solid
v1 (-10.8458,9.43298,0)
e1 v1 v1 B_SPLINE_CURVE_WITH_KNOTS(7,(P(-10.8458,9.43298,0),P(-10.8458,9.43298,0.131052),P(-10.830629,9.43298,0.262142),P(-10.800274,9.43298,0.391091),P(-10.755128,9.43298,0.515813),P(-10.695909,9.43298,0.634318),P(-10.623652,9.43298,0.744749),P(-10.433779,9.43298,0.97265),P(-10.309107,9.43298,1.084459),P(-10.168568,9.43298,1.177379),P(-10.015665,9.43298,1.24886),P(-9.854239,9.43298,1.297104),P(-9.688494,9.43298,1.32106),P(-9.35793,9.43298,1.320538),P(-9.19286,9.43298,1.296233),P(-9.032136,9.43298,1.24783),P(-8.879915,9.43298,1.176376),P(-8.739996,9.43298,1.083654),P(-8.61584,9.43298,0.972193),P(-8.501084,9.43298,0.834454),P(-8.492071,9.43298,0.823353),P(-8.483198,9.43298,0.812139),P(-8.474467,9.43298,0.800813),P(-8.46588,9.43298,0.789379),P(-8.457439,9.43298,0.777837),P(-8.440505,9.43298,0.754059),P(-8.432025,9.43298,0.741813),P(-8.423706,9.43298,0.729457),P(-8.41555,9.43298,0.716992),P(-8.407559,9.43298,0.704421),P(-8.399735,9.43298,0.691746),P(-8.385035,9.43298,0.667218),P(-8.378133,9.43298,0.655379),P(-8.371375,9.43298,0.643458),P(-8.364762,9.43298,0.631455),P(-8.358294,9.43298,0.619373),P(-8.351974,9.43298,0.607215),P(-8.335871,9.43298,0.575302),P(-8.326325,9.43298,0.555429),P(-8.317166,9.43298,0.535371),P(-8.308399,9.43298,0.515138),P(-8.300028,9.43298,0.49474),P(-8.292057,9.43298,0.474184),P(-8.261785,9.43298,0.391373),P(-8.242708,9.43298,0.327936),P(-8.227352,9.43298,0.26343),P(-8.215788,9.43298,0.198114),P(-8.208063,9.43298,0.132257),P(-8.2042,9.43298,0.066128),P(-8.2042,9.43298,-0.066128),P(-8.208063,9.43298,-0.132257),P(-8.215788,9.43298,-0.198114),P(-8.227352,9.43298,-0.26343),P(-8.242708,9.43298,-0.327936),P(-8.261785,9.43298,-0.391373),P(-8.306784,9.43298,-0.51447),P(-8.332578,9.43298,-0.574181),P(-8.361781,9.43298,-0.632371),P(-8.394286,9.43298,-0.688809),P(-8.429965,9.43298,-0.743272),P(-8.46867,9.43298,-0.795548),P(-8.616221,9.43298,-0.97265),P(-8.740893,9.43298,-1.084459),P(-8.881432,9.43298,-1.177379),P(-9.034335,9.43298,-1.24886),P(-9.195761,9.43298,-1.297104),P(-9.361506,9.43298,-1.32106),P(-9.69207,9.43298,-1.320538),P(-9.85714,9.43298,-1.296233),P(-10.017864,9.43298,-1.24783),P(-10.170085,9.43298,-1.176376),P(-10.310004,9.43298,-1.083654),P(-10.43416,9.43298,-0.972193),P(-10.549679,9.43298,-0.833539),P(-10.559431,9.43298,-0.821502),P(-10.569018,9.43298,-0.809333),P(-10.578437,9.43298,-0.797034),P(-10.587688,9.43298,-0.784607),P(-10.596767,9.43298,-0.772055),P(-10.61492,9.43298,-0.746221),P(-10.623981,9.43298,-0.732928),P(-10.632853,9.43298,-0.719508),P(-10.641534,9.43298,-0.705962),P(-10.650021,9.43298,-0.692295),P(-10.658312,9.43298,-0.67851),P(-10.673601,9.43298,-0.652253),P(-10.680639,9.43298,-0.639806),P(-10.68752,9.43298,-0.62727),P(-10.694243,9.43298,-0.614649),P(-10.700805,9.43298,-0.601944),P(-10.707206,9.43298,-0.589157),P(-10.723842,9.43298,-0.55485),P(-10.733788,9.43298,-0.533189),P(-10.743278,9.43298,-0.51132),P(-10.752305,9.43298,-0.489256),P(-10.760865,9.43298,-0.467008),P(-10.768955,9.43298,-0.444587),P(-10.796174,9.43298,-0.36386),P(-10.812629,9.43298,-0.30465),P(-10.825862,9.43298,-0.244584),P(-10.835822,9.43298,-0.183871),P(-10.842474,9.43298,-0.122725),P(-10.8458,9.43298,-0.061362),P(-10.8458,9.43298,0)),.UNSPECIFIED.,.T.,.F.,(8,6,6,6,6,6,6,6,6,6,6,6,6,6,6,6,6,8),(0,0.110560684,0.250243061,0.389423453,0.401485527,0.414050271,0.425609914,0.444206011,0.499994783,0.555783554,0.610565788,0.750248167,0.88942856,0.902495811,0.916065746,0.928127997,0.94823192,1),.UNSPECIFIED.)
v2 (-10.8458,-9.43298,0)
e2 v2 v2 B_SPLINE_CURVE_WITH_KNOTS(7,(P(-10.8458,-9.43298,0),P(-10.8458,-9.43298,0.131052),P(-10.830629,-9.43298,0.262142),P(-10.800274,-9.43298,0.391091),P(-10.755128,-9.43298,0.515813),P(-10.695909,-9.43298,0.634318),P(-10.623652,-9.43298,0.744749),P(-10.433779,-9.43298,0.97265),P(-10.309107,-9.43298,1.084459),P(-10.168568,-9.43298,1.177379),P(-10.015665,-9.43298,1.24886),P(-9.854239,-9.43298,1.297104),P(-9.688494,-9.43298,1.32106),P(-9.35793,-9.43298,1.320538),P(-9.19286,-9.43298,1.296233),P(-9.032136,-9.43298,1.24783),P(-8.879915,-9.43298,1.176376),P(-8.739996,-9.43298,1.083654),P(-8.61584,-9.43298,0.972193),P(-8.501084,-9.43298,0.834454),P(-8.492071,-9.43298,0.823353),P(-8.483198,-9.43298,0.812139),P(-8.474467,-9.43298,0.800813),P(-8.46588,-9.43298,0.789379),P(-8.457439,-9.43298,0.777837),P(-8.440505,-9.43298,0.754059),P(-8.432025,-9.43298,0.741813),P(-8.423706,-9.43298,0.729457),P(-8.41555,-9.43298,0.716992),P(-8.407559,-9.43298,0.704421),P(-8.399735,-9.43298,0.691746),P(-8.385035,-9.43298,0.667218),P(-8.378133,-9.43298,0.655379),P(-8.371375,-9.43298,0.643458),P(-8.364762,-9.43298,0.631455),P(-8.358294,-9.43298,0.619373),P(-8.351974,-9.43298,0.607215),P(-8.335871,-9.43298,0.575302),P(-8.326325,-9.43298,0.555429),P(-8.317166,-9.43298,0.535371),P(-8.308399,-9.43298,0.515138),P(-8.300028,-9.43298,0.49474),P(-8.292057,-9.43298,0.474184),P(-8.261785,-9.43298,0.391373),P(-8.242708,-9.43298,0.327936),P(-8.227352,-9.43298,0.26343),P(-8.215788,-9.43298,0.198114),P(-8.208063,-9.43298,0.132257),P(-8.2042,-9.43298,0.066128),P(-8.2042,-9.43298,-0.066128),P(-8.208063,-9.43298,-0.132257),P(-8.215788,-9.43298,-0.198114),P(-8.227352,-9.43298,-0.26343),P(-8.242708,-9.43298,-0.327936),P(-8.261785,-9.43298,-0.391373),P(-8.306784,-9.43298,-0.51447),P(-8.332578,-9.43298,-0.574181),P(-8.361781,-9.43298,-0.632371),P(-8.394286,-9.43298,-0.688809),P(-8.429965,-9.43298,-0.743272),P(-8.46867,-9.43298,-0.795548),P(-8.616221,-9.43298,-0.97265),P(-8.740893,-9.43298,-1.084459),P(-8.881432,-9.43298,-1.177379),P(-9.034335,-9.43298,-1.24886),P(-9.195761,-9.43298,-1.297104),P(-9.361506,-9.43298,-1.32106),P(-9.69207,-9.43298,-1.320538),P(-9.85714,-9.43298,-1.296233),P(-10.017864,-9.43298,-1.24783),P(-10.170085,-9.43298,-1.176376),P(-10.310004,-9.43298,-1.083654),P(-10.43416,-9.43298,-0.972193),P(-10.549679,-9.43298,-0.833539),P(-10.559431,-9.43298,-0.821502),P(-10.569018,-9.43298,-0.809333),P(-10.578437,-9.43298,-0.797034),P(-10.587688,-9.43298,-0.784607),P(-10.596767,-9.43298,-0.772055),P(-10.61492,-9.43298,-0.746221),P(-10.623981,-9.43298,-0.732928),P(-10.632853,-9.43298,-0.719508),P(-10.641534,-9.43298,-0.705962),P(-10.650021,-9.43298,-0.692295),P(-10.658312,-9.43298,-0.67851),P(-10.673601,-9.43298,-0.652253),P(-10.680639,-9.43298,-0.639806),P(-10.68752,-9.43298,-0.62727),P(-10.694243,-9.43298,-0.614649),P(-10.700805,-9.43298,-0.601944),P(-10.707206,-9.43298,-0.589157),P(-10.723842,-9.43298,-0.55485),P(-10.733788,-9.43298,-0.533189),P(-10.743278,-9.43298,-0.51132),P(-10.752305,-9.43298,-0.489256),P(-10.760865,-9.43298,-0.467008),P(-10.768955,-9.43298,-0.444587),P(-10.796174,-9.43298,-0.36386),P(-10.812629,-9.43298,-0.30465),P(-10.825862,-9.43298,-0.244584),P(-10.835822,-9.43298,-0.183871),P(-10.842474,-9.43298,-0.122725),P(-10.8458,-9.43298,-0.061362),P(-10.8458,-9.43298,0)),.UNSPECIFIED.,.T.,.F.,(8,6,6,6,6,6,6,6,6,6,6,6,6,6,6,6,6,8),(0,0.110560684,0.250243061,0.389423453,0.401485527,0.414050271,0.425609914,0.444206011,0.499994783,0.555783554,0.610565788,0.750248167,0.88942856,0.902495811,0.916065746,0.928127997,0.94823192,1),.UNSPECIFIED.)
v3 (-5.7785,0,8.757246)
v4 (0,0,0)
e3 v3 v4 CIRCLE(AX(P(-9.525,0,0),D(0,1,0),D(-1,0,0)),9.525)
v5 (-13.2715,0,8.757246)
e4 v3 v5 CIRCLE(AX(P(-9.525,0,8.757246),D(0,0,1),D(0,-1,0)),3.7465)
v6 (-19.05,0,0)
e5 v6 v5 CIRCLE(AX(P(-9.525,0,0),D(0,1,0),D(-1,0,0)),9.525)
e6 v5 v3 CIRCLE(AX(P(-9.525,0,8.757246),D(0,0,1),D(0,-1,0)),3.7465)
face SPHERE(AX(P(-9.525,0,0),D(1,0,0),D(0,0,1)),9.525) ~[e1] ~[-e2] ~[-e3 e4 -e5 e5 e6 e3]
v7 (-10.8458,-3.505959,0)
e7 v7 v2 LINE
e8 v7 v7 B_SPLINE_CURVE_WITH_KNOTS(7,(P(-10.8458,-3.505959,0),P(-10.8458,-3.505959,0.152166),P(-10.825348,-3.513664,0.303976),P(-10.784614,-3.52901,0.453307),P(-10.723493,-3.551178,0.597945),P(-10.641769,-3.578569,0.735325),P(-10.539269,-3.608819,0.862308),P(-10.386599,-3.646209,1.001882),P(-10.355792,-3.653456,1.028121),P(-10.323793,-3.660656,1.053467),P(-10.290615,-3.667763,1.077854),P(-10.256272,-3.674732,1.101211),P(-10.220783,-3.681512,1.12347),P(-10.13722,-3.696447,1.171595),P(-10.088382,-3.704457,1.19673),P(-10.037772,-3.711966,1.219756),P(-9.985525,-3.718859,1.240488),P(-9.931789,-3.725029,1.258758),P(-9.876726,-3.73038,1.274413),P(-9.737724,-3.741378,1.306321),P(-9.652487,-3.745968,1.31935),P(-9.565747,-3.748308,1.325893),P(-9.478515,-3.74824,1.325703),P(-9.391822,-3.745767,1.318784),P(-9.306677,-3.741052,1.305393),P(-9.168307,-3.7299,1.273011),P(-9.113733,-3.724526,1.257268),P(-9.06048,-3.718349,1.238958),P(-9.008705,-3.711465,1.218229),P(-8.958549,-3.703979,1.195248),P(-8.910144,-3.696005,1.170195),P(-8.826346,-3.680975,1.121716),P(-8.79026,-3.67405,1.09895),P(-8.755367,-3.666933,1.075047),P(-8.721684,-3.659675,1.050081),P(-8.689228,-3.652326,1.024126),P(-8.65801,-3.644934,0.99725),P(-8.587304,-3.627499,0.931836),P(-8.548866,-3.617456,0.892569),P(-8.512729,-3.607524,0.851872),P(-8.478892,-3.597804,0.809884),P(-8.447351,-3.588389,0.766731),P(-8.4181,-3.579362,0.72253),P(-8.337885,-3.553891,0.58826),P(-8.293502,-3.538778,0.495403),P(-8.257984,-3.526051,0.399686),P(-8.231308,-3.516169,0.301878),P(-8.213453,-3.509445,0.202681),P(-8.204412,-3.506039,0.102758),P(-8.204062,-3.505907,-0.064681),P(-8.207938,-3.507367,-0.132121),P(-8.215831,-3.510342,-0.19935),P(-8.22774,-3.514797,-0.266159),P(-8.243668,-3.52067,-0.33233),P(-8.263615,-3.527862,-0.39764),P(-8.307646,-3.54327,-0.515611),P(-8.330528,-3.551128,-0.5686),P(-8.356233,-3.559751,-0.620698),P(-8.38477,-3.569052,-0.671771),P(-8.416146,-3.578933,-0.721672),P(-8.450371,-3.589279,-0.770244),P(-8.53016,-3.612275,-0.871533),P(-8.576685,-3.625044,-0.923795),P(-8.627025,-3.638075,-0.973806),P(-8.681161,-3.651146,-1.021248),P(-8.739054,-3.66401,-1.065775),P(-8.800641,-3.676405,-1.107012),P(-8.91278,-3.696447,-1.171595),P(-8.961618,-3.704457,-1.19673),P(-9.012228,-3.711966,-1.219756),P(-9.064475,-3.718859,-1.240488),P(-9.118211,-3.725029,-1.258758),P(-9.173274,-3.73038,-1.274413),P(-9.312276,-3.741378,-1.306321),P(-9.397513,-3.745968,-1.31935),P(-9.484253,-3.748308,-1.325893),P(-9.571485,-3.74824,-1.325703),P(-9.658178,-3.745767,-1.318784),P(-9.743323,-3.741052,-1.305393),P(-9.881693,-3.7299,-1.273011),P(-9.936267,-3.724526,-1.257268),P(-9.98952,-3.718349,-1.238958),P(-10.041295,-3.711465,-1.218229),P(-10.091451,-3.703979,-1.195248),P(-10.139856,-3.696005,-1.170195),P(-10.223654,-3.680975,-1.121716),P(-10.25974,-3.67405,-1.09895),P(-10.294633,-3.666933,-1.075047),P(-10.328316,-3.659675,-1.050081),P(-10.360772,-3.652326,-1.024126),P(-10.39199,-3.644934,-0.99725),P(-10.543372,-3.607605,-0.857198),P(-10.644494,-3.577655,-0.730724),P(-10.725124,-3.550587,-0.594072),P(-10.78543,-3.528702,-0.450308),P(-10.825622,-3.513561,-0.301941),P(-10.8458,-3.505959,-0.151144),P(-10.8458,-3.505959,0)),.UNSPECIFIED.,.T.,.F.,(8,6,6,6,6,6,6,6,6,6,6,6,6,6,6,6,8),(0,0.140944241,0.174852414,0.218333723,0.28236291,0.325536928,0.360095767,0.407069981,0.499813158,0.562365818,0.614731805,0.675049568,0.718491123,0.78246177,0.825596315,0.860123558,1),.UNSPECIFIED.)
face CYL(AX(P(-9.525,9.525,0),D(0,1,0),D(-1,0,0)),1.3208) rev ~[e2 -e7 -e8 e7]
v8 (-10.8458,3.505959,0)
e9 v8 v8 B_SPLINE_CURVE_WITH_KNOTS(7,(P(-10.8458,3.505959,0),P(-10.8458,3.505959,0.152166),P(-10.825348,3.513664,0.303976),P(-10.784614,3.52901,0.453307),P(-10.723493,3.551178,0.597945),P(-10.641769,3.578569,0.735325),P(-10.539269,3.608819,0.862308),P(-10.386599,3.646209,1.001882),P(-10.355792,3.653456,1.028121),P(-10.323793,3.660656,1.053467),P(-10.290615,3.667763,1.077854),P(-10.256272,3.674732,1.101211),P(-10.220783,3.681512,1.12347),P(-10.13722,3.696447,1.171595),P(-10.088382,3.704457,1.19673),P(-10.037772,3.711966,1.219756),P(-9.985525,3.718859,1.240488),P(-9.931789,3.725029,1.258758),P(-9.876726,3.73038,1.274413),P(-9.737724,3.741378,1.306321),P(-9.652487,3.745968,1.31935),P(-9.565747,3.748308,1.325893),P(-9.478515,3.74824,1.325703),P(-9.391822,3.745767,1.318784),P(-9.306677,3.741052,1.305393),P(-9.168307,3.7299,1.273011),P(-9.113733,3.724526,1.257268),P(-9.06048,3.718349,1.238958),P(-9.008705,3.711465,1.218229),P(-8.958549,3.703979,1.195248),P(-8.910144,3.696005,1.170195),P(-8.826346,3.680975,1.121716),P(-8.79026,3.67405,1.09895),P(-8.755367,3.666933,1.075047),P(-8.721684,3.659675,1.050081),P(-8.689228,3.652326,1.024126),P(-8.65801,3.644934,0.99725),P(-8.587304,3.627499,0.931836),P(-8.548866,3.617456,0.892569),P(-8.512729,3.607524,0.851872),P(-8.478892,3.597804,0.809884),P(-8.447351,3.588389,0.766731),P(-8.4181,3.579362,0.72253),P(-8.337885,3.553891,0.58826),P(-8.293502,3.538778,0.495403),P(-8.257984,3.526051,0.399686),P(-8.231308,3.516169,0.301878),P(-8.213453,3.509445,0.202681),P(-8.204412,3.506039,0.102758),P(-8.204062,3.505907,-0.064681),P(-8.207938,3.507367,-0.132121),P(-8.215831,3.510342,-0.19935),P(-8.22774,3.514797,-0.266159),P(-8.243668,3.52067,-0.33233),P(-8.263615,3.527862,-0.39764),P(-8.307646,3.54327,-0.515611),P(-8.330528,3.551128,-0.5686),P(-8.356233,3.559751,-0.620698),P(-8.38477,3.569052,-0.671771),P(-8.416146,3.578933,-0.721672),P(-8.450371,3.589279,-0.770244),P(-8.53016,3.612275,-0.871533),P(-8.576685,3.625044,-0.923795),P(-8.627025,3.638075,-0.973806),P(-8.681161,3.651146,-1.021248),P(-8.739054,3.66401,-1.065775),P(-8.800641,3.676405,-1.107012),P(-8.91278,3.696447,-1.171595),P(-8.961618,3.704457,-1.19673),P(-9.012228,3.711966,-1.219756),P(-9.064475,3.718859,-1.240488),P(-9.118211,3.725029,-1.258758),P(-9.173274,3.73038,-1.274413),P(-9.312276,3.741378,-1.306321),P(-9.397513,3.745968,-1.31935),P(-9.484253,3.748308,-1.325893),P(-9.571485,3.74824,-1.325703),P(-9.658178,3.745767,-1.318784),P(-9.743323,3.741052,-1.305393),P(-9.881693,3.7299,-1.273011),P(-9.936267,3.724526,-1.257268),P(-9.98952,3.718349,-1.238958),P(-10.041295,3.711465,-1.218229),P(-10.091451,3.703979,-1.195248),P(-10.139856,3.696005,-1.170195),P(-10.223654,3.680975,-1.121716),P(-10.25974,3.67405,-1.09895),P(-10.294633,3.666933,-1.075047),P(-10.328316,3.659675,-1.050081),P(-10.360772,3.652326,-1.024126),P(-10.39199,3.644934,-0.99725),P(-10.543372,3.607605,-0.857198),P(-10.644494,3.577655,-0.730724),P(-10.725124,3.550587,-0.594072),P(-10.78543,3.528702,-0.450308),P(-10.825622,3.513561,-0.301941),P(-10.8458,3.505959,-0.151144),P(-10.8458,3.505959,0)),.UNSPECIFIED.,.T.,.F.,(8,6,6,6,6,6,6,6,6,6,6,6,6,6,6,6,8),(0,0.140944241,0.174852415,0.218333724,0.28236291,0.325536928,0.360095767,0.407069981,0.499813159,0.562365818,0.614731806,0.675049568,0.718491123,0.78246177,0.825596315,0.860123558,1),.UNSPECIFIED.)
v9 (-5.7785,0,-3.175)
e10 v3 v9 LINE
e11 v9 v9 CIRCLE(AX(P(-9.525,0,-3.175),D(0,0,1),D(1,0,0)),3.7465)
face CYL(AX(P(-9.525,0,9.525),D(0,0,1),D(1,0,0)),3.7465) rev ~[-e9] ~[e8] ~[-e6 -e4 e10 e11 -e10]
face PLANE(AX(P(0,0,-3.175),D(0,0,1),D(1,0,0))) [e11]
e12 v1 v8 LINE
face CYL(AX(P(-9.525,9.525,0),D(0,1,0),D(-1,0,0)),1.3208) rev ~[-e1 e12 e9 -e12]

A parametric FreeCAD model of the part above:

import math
import FreeCAD as App
import Part
import Sketcher

V = App.Vector
Q = App.Units.Quantity

doc = App.newDocument("Part")
body = doc.addObject("PartDesign::Body", "Body")

# Sketch on XZ plane
sketch1 = body.newObject("Sketcher::SketchObject", "Sketch")
sketch1.AttachmentSupport = (doc.getObject("XZ_Plane"), [""])
sketch1.MapMode = "FlatFace"
sketch1.addGeometry(Part.ArcOfCircle(Part.Circle(V(-9.525, 0, 0), V(0, 0, 1), 9.525), math.radians(0), math.radians(180)), False)
sketch1.addGeometry(Part.LineSegment(V(0, 0, 0), V(-19.05, 0, 0)), False)
sketch1.addConstraint(Sketcher.Constraint("Coincident", 0, 1, 1, 1))
sketch1.addConstraint(Sketcher.Constraint("Coincident", 1, 2, 0, 2))
sketch1.addConstraint(Sketcher.Constraint("Horizontal", 1))
sketch1.addConstraint(Sketcher.Constraint("Coincident", 0, 1, -1, 1))
sketch1.addConstraint(Sketcher.Constraint("PointOnObject", 0, 3, -1))
sketch1.addConstraint(Sketcher.Constraint("Radius", 0, Q("0.375 in")))
revolution = body.newObject("PartDesign::Revolution", "Revolution")
revolution.Profile = sketch1
revolution.ReferenceAxis = (sketch1, ["H_Axis"])
revolution.Angle = 360

# Sketch on XZ plane
sketch2 = body.newObject("Sketcher::SketchObject", "Sketch001")
sketch2.AttachmentSupport = (doc.getObject("XZ_Plane"), [""])
sketch2.MapMode = "FlatFace"
sketch2.AttachmentOffset = App.Placement(V(0, 0, -0.375 * 25.4), App.Rotation())
sketch2.addGeometry(Part.Circle(V(-9.525, 0, 0), V(0, 0, 1), 1.3208), False)
sketch2.addConstraint(Sketcher.Constraint("PointOnObject", 0, 3, -1))
sketch2.addConstraint(Sketcher.Constraint("Diameter", 0, Q("0.104 in")))
sketch2.addConstraint(Sketcher.Constraint("DistanceX", 0, 3, -1, 1, Q("0.375 in")))
pocket1 = body.newObject("PartDesign::Pocket", "Pocket")
pocket1.Profile = sketch2
pocket1.Type = "ThroughAll"
pocket1.Reversed = True

# Sketch on XY plane
sketch3 = body.newObject("Sketcher::SketchObject", "Sketch002")
sketch3.AttachmentSupport = (doc.getObject("XY_Plane"), [""])
sketch3.MapMode = "FlatFace"
sketch3.AttachmentOffset = App.Placement(V(0, 0, 0.375 * 25.4), App.Rotation())
sketch3.addGeometry(Part.Circle(V(-9.525, 0, 0), V(0, 0, 1), 3.7465), False)
sketch3.addConstraint(Sketcher.Constraint("PointOnObject", 0, 3, -1))
sketch3.addConstraint(Sketcher.Constraint("Diameter", 0, Q("0.295 in")))
sketch3.addConstraint(Sketcher.Constraint("DistanceX", 0, 3, -1, 1, Q("0.375 in")))
pocket2 = body.newObject("PartDesign::Pocket", "Pocket001")
pocket2.Profile = sketch3
pocket2.Length = Q("0.5 in")

doc.recompute()
